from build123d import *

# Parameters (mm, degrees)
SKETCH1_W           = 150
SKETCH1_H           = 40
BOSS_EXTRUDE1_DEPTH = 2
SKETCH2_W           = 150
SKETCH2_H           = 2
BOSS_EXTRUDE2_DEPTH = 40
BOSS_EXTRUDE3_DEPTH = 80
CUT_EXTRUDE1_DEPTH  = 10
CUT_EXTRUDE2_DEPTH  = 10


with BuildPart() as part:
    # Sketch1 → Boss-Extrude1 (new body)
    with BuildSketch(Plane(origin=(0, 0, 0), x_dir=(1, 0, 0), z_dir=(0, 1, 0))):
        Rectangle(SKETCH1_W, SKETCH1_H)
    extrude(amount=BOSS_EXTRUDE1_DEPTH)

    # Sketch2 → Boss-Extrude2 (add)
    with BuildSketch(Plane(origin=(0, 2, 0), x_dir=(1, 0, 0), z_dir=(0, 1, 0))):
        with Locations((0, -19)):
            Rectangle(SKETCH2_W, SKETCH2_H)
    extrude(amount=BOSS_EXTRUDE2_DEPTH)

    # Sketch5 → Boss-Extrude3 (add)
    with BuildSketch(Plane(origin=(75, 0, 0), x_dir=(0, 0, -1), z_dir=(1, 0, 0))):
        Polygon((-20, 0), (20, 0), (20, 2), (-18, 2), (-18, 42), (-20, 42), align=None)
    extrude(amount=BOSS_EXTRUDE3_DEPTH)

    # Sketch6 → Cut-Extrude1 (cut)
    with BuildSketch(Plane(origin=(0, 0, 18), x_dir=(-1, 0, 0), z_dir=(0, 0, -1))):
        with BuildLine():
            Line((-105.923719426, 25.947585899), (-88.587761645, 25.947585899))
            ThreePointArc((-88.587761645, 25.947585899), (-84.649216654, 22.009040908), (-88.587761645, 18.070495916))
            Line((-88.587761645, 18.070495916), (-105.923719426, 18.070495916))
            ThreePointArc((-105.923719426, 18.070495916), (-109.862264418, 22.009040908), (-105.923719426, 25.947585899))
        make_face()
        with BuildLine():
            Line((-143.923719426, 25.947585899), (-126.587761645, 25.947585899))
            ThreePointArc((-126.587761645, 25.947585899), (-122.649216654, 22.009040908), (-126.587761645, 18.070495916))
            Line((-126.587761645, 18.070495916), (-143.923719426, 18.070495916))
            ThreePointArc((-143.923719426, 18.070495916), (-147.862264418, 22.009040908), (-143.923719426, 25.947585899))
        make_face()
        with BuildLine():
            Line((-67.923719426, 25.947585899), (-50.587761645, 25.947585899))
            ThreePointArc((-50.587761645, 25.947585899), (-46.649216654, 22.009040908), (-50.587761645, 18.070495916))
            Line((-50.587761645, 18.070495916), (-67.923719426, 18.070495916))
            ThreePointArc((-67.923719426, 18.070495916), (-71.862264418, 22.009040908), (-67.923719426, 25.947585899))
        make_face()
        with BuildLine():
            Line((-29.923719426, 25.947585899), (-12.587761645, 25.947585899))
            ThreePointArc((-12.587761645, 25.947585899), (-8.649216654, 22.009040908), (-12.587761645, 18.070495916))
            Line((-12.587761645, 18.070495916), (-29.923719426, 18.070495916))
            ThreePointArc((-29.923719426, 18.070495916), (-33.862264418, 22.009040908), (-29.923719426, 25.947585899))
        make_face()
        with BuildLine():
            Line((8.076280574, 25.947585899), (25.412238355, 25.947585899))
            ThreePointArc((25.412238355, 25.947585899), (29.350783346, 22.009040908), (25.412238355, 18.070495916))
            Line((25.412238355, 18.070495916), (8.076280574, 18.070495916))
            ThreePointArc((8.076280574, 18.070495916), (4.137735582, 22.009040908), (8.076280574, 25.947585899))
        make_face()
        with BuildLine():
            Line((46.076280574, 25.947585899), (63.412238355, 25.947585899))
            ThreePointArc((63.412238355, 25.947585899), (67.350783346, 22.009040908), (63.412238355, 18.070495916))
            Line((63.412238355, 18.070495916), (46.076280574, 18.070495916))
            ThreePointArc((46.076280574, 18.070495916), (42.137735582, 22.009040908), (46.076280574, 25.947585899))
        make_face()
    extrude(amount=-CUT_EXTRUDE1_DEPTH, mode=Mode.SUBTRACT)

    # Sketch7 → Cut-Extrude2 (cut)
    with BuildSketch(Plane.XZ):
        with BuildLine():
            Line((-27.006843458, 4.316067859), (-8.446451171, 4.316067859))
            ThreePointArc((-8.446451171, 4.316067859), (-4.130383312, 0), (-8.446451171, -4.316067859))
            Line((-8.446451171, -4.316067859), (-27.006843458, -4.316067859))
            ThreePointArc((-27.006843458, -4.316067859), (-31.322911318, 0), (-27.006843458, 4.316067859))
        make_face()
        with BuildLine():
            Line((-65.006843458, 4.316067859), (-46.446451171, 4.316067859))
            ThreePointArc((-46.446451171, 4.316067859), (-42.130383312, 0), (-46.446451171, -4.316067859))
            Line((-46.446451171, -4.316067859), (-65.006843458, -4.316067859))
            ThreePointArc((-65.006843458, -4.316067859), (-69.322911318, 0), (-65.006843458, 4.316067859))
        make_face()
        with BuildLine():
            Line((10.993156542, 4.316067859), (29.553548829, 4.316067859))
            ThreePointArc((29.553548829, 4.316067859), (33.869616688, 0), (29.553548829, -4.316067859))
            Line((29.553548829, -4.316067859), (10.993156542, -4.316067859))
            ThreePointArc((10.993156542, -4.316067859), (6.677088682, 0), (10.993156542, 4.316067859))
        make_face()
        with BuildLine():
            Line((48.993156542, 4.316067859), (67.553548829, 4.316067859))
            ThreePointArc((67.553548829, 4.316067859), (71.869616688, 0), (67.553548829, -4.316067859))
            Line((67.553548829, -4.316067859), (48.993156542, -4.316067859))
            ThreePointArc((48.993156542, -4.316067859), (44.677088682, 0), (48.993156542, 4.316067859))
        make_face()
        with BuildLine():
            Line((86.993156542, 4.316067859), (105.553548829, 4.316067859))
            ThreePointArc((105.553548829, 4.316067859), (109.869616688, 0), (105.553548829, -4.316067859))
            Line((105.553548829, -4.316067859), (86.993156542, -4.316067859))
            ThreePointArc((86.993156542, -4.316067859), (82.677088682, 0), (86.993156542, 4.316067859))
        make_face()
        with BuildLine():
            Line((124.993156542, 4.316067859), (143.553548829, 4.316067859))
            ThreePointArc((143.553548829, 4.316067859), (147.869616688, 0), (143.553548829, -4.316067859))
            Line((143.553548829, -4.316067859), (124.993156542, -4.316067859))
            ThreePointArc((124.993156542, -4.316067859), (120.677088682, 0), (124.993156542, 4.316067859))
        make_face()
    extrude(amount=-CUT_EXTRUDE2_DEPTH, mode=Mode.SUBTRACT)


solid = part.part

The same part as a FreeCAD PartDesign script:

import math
import FreeCAD as App
import Part
import Sketcher


def add_polygon(sketch, points):
    """Adds a closed chain of lines whose ends are joined by coincident constraints."""
    first, n = sketch.GeometryCount, len(points)
    for a, b in zip(points, points[1:] + points[:1]):
        sketch.addGeometry(Part.LineSegment(App.Vector(*a, 0), App.Vector(*b, 0)), False)
    for i in range(n):
        sketch.addConstraint(Sketcher.Constraint("Coincident", first + i, 2, first + (i + 1) % n, 1))

doc = App.newDocument("Part")
body = doc.addObject("PartDesign::Body", "Body")

sketch1 = doc.addObject("Sketcher::SketchObject", "Sketch")
body.addObject(sketch1)
sketch1.AttachmentSupport = (doc.XZ_Plane, [""])
sketch1.MapMode = "FlatFace"
add_polygon(sketch1, [(-75, -20), (-75, 20), (75, 20), (75, -20)])
sketch1.addConstraint([
    Sketcher.Constraint("Vertical", 0),
    Sketcher.Constraint("Horizontal", 1),
    Sketcher.Constraint("Vertical", 2),
    Sketcher.Constraint("Horizontal", 3),
    Sketcher.Constraint("Symmetric", 0, 2, 2, 2, -1, 1),
    Sketcher.Constraint("DistanceX", 1, 1, 1, 2, 150.0),
    Sketcher.Constraint("DistanceY", 0, 1, 0, 2, 40.0),
])
pad1 = doc.addObject("PartDesign::Pad", "Pad")
body.addObject(pad1)
pad1.Profile = sketch1
pad1.Length = 2
pad1.Reversed = True

sketch2 = doc.addObject("Sketcher::SketchObject", "Sketch001")
body.addObject(sketch2)
sketch2.AttachmentSupport = (doc.XZ_Plane, [""])
sketch2.MapMode = "FlatFace"
sketch2.AttachmentOffset = App.Placement(App.Vector(0, 0, -2), App.Rotation())
add_polygon(sketch2, [(-75, 18), (-75, 20), (75, 20), (75, 18)])
sketch2.addConstraint([
    Sketcher.Constraint("Vertical", 0),
    Sketcher.Constraint("Horizontal", 1),
    Sketcher.Constraint("Vertical", 2),
    Sketcher.Constraint("Horizontal", 3),
    Sketcher.Constraint("DistanceX", 1, 1, 1, 2, 150.0),
    Sketcher.Constraint("DistanceY", 0, 1, 0, 2, 2.0),
    Sketcher.Constraint("DistanceX", 0, 2, -1, 1, 75.0),
    Sketcher.Constraint("DistanceY", -1, 1, 0, 2, 20.0),
])
pad2 = doc.addObject("PartDesign::Pad", "Pad001")
body.addObject(pad2)
pad2.Profile = sketch2
pad2.Length = 40
pad2.Reversed = True

sketch3 = doc.addObject("Sketcher::SketchObject", "Sketch002")
body.addObject(sketch3)
sketch3.AttachmentSupport = (doc.YZ_Plane, [""])
sketch3.MapMode = "FlatFace"
sketch3.AttachmentOffset = App.Placement(App.Vector(0, 0, 75), App.Rotation())
add_polygon(sketch3, [(0, 20), (0, -20), (2, -20), (2, 18), (42, 18), (42, 20)])
sketch3.addConstraint([
    Sketcher.Constraint("Vertical", 0),
    Sketcher.Constraint("Horizontal", 1),
    Sketcher.Constraint("Vertical", 2),
    Sketcher.Constraint("Horizontal", 3),
    Sketcher.Constraint("Vertical", 4),
    Sketcher.Constraint("Horizontal", 5),
    Sketcher.Constraint("Symmetric", 0, 2, 5, 2, -1, 1),
    Sketcher.Constraint("Equal", 3, 0),
    Sketcher.Constraint("Equal", 1, 4),
    Sketcher.Constraint("DistanceX", 1, 1, 1, 2, 2.0),
    Sketcher.Constraint("DistanceX", 3, 1, 3, 2, 40.0),
])
pad3 = doc.addObject("PartDesign::Pad", "Pad002")
body.addObject(pad3)
pad3.Profile = sketch3
pad3.Length = 80

sketch4 = doc.addObject("Sketcher::SketchObject", "Sketch003")
body.addObject(sketch4)
sketch4.AttachmentSupport = (doc.XY_Plane, [""])
sketch4.MapMode = "FlatFace"
sketch4.AttachmentOffset = App.Placement(App.Vector(0, 0, 18), App.Rotation())
sketch4.addGeometry([
    Part.LineSegment(App.Vector(88.6, 25.9, 0), App.Vector(105.9, 25.9, 0)),
    Part.ArcOfCircle(Part.Circle(App.Vector(105.9, 22, 0), App.Vector(0, 0, 1), 3.9), math.radians(-90), math.radians(90)),
    Part.LineSegment(App.Vector(105.9, 18.1, 0), App.Vector(88.6, 18.1, 0)),
    Part.ArcOfCircle(Part.Circle(App.Vector(88.6, 22, 0), App.Vector(0, 0, 1), 3.9), math.radians(90), math.radians(270)),
    Part.LineSegment(App.Vector(126.6, 25.9, 0), App.Vector(143.9, 25.9, 0)),
    Part.ArcOfCircle(Part.Circle(App.Vector(143.9, 22, 0), App.Vector(0, 0, 1), 3.9), math.radians(-90), math.radians(90)),
    Part.LineSegment(App.Vector(143.9, 18.1, 0), App.Vector(126.6, 18.1, 0)),
    Part.ArcOfCircle(Part.Circle(App.Vector(126.6, 22, 0), App.Vector(0, 0, 1), 3.9), math.radians(90), math.radians(270)),
    Part.LineSegment(App.Vector(50.6, 25.9, 0), App.Vector(67.9, 25.9, 0)),
    Part.ArcOfCircle(Part.Circle(App.Vector(67.9, 22, 0), App.Vector(0, 0, 1), 3.9), math.radians(-90), math.radians(90)),
    Part.LineSegment(App.Vector(67.9, 18.1, 0), App.Vector(50.6, 18.1, 0)),
    Part.ArcOfCircle(Part.Circle(App.Vector(50.6, 22, 0), App.Vector(0, 0, 1), 3.9), math.radians(90), math.radians(270)),
    Part.LineSegment(App.Vector(12.6, 25.9, 0), App.Vector(29.9, 25.9, 0)),
    Part.ArcOfCircle(Part.Circle(App.Vector(29.9, 22, 0), App.Vector(0, 0, 1), 3.9), math.radians(-90), math.radians(90)),
    Part.LineSegment(App.Vector(29.9, 18.1, 0), App.Vector(12.6, 18.1, 0)),
    Part.ArcOfCircle(Part.Circle(App.Vector(12.6, 22, 0), App.Vector(0, 0, 1), 3.9), math.radians(90), math.radians(270)),
    Part.LineSegment(App.Vector(-25.4, 25.9, 0), App.Vector(-8.1, 25.9, 0)),
    Part.ArcOfCircle(Part.Circle(App.Vector(-8.1, 22, 0), App.Vector(0, 0, 1), 3.9), math.radians(-90), math.radians(90)),
    Part.LineSegment(App.Vector(-8.1, 18.1, 0), App.Vector(-25.4, 18.1, 0)),
    Part.ArcOfCircle(Part.Circle(App.Vector(-25.4, 22, 0), App.Vector(0, 0, 1), 3.9), math.radians(90), math.radians(270)),
    Part.LineSegment(App.Vector(-63.4, 25.9, 0), App.Vector(-46.1, 25.9, 0)),
    Part.ArcOfCircle(Part.Circle(App.Vector(-46.1, 22, 0), App.Vector(0, 0, 1), 3.9), math.radians(-90), math.radians(90)),
    Part.LineSegment(App.Vector(-46.1, 18.1, 0), App.Vector(-63.4, 18.1, 0)),
    Part.ArcOfCircle(Part.Circle(App.Vector(-63.4, 22, 0), App.Vector(0, 0, 1), 3.9), math.radians(90), math.radians(270)),
], False)
sketch4.addConstraint([
    Sketcher.Constraint("Tangent", 0, 2, 1, 2),
    Sketcher.Constraint("Tangent", 1, 1, 2, 1),
    Sketcher.Constraint("Tangent", 2, 2, 3, 2),
    Sketcher.Constraint("Tangent", 3, 1, 0, 1),
    Sketcher.Constraint("Tangent", 4, 2, 5, 2),
    Sketcher.Constraint("Tangent", 5, 1, 6, 1),
    Sketcher.Constraint("Tangent", 6, 2, 7, 2),
    Sketcher.Constraint("Tangent", 7, 1, 4, 1),
    Sketcher.Constraint("Tangent", 8, 2, 9, 2),
    Sketcher.Constraint("Tangent", 9, 1, 10, 1),
    Sketcher.Constraint("Tangent", 10, 2, 11, 2),
    Sketcher.Constraint("Tangent", 11, 1, 8, 1),
    Sketcher.Constraint("Tangent", 12, 2, 13, 2),
    Sketcher.Constraint("Tangent", 13, 1, 14, 1),
    Sketcher.Constraint("Tangent", 14, 2, 15, 2),
    Sketcher.Constraint("Tangent", 15, 1, 12, 1),
    Sketcher.Constraint("Tangent", 16, 2, 17, 2),
    Sketcher.Constraint("Tangent", 17, 1, 18, 1),
    Sketcher.Constraint("Tangent", 18, 2, 19, 2),
    Sketcher.Constraint("Tangent", 19, 1, 16, 1),
    Sketcher.Constraint("Tangent", 20, 2, 21, 2),
    Sketcher.Constraint("Tangent", 21, 1, 22, 1),
    Sketcher.Constraint("Tangent", 22, 2, 23, 2),
    Sketcher.Constraint("Tangent", 23, 1, 20, 1),
    Sketcher.Constraint("Horizontal", 0),
    Sketcher.Constraint("Horizontal", 2),
    Sketcher.Constraint("Horizontal", 4),
    Sketcher.Constraint("Horizontal", 6),
    Sketcher.Constraint("Horizontal", 8),
    Sketcher.Constraint("Horizontal", 10),
    Sketcher.Constraint("Horizontal", 12),
    Sketcher.Constraint("Horizontal", 14),
    Sketcher.Constraint("Horizontal", 16),
    Sketcher.Constraint("Horizontal", 18),
    Sketcher.Constraint("Horizontal", 20),
    Sketcher.Constraint("Horizontal", 22),
    Sketcher.Constraint("Equal", 3, 5),
    Sketcher.Constraint("Equal", 7, 9),
    Sketcher.Constraint("Equal", 11, 13),
    Sketcher.Constraint("Equal", 15, 17),
    Sketcher.Constraint("Equal", 19, 21),
    Sketcher.Constraint("Horizontal", 3, 3, 5, 3),
    Sketcher.Constraint("Horizontal", 7, 3, 9, 3),
    Sketcher.Constraint("Horizontal", 11, 3, 13, 3),
    Sketcher.Constraint("Horizontal", 15, 3, 17, 3),
    Sketcher.Constraint("Horizontal", 19, 3, 21, 3),
    Sketcher.Constraint("Equal", 2, 4),
    Sketcher.Constraint("Equal", 6, 8),
    Sketcher.Constraint("Equal", 10, 12),
    Sketcher.Constraint("Equal", 14, 16),
    Sketcher.Constraint("Equal", 18, 20),
    Sketcher.Constraint("DistanceX", 1, 3, 5, 3, 38.0),
    Sketcher.Constraint("DistanceX", 9, 3, 1, 3, 38.0),
    Sketcher.Constraint("DistanceX", 13, 3, 9, 3, 38.0),
    Sketcher.Constraint("DistanceX", 17, 3, 13, 3, 38.0),
    Sketcher.Constraint("DistanceX", 21, 3, 17, 3, 38.0),
    Sketcher.Constraint("Radius", 1, 3.938545),
    Sketcher.Constraint("DistanceX", 0, 1, 0, 2, 17.335958),
    Sketcher.Constraint("DistanceX", -1, 1, 1, 3, 105.923719),
    Sketcher.Constraint("DistanceY", -1, 1, 1, 3, 22.009041),
])
pocket1 = doc.addObject("PartDesign::Pocket", "Pocket")
body.addObject(pocket1)
pocket1.Profile = sketch4
pocket1.Length = 10
pocket1.Reversed = True

sketch5 = doc.addObject("Sketcher::SketchObject", "Sketch004")
body.addObject(sketch5)
sketch5.AttachmentSupport = (doc.XZ_Plane, [""])
sketch5.MapMode = "FlatFace"
sketch5.addGeometry([
    Part.LineSegment(App.Vector(-8.4, 4.3, 0), App.Vector(-27, 4.3, 0)),
    Part.ArcOfCircle(Part.Circle(App.Vector(-27, 0, 0), App.Vector(0, 0, 1), 4.3), math.radians(90), math.radians(270)),
    Part.LineSegment(App.Vector(-27, -4.3, 0), App.Vector(-8.4, -4.3, 0)),
    Part.ArcOfCircle(Part.Circle(App.Vector(-8.4, 0, 0), App.Vector(0, 0, 1), 4.3), math.radians(-90), math.radians(90)),
    Part.LineSegment(App.Vector(-46.4, 4.3, 0), App.Vector(-65, 4.3, 0)),
    Part.ArcOfCircle(Part.Circle(App.Vector(-65, 0, 0), App.Vector(0, 0, 1), 4.3), math.radians(90), math.radians(270)),
    Part.LineSegment(App.Vector(-65, -4.3, 0), App.Vector(-46.4, -4.3, 0)),
    Part.ArcOfCircle(Part.Circle(App.Vector(-46.4, 0, 0), App.Vector(0, 0, 1), 4.3), math.radians(-90), math.radians(90)),
    Part.LineSegment(App.Vector(29.6, 4.3, 0), App.Vector(11, 4.3, 0)),
    Part.ArcOfCircle(Part.Circle(App.Vector(11, 0, 0), App.Vector(0, 0, 1), 4.3), math.radians(90), math.radians(270)),
    Part.LineSegment(App.Vector(11, -4.3, 0), App.Vector(29.6, -4.3, 0)),
    Part.ArcOfCircle(Part.Circle(App.Vector(29.6, 0, 0), App.Vector(0, 0, 1), 4.3), math.radians(-90), math.radians(90)),
    Part.LineSegment(App.Vector(67.6, 4.3, 0), App.Vector(49, 4.3, 0)),
    Part.ArcOfCircle(Part.Circle(App.Vector(49, 0, 0), App.Vector(0, 0, 1), 4.3), math.radians(90), math.radians(270)),
    Part.LineSegment(App.Vector(49, -4.3, 0), App.Vector(67.6, -4.3, 0)),
    Part.ArcOfCircle(Part.Circle(App.Vector(67.6, 0, 0), App.Vector(0, 0, 1), 4.3), math.radians(-90), math.radians(90)),
    Part.LineSegment(App.Vector(105.6, 4.3, 0), App.Vector(87, 4.3, 0)),
    Part.ArcOfCircle(Part.Circle(App.Vector(87, 0, 0), App.Vector(0, 0, 1), 4.3), math.radians(90), math.radians(270)),
    Part.LineSegment(App.Vector(87, -4.3, 0), App.Vector(105.6, -4.3, 0)),
    Part.ArcOfCircle(Part.Circle(App.Vector(105.6, 0, 0), App.Vector(0, 0, 1), 4.3), math.radians(-90), math.radians(90)),
    Part.LineSegment(App.Vector(143.6, 4.3, 0), App.Vector(125, 4.3, 0)),
    Part.ArcOfCircle(Part.Circle(App.Vector(125, 0, 0), App.Vector(0, 0, 1), 4.3), math.radians(90), math.radians(270)),
    Part.LineSegment(App.Vector(125, -4.3, 0), App.Vector(143.6, -4.3, 0)),
    Part.ArcOfCircle(Part.Circle(App.Vector(143.6, 0, 0), App.Vector(0, 0, 1), 4.3), math.radians(-90), math.radians(90)),
], False)
sketch5.addConstraint([
    Sketcher.Constraint("Tangent", 0, 2, 1, 1),
    Sketcher.Constraint("Tangent", 1, 2, 2, 1),
    Sketcher.Constraint("Tangent", 2, 2, 3, 1),
    Sketcher.Constraint("Tangent", 3, 2, 0, 1),
    Sketcher.Constraint("Tangent", 4, 2, 5, 1),
    Sketcher.Constraint("Tangent", 5, 2, 6, 1),
    Sketcher.Constraint("Tangent", 6, 2, 7, 1),
    Sketcher.Constraint("Tangent", 7, 2, 4, 1),
    Sketcher.Constraint("Tangent", 8, 2, 9, 1),
    Sketcher.Constraint("Tangent", 9, 2, 10, 1),
    Sketcher.Constraint("Tangent", 10, 2, 11, 1),
    Sketcher.Constraint("Tangent", 11, 2, 8, 1),
    Sketcher.Constraint("Tangent", 12, 2, 13, 1),
    Sketcher.Constraint("Tangent", 13, 2, 14, 1),
    Sketcher.Constraint("Tangent", 14, 2, 15, 1),
    Sketcher.Constraint("Tangent", 15, 2, 12, 1),
    Sketcher.Constraint("Tangent", 16, 2, 17, 1),
    Sketcher.Constraint("Tangent", 17, 2, 18, 1),
    Sketcher.Constraint("Tangent", 18, 2, 19, 1),
    Sketcher.Constraint("Tangent", 19, 2, 16, 1),
    Sketcher.Constraint("Tangent", 20, 2, 21, 1),
    Sketcher.Constraint("Tangent", 21, 2, 22, 1),
    Sketcher.Constraint("Tangent", 22, 2, 23, 1),
    Sketcher.Constraint("Tangent", 23, 2, 20, 1),
    Sketcher.Constraint("Horizontal", 0),
    Sketcher.Constraint("Horizontal", 2),
    Sketcher.Constraint("Horizontal", 4),
    Sketcher.Constraint("Horizontal", 6),
    Sketcher.Constraint("Horizontal", 8),
    Sketcher.Constraint("Horizontal", 10),
    Sketcher.Constraint("Horizontal", 12),
    Sketcher.Constraint("Horizontal", 14),
    Sketcher.Constraint("Horizontal", 16),
    Sketcher.Constraint("Horizontal", 18),
    Sketcher.Constraint("Horizontal", 20),
    Sketcher.Constraint("Horizontal", 22),
    Sketcher.Constraint("Equal", 3, 5),
    Sketcher.Constraint("Equal", 7, 9),
    Sketcher.Constraint("Equal", 11, 13),
    Sketcher.Constraint("Equal", 15, 17),
    Sketcher.Constraint("Equal", 19, 21),
    Sketcher.Constraint("PointOnObject", 1, 3, -1),
    Sketcher.Constraint("PointOnObject", 5, 3, -1),
    Sketcher.Constraint("PointOnObject", 9, 3, -1),
    Sketcher.Constraint("PointOnObject", 13, 3, -1),
    Sketcher.Constraint("PointOnObject", 17, 3, -1),
    Sketcher.Constraint("PointOnObject", 21, 3, -1),
    Sketcher.Constraint("Equal", 2, 4),
    Sketcher.Constraint("Equal", 6, 8),
    Sketcher.Constraint("Equal", 10, 12),
    Sketcher.Constraint("Equal", 14, 16),
    Sketcher.Constraint("Equal", 18, 20),
    Sketcher.Constraint("DistanceX", 5, 3, 1, 3, 38.0),
    Sketcher.Constraint("DistanceX", 1, 3, 9, 3, 38.0),
    Sketcher.Constraint("DistanceX", 9, 3, 13, 3, 38.0),
    Sketcher.Constraint("DistanceX", 13, 3, 17, 3, 38.0),
    Sketcher.Constraint("DistanceX", 17, 3, 21, 3, 38.0),
    Sketcher.Constraint("Radius", 1, 4.316068),
    Sketcher.Constraint("DistanceX", 0, 2, 0, 1, 18.560392),
    Sketcher.Constraint("DistanceX", 3, 3, -1, 1, 8.446451),
])
pocket2 = doc.addObject("PartDesign::Pocket", "Pocket001")
body.addObject(pocket2)
pocket2.Profile = sketch5
pocket2.Length = 10

doc.recompute()
